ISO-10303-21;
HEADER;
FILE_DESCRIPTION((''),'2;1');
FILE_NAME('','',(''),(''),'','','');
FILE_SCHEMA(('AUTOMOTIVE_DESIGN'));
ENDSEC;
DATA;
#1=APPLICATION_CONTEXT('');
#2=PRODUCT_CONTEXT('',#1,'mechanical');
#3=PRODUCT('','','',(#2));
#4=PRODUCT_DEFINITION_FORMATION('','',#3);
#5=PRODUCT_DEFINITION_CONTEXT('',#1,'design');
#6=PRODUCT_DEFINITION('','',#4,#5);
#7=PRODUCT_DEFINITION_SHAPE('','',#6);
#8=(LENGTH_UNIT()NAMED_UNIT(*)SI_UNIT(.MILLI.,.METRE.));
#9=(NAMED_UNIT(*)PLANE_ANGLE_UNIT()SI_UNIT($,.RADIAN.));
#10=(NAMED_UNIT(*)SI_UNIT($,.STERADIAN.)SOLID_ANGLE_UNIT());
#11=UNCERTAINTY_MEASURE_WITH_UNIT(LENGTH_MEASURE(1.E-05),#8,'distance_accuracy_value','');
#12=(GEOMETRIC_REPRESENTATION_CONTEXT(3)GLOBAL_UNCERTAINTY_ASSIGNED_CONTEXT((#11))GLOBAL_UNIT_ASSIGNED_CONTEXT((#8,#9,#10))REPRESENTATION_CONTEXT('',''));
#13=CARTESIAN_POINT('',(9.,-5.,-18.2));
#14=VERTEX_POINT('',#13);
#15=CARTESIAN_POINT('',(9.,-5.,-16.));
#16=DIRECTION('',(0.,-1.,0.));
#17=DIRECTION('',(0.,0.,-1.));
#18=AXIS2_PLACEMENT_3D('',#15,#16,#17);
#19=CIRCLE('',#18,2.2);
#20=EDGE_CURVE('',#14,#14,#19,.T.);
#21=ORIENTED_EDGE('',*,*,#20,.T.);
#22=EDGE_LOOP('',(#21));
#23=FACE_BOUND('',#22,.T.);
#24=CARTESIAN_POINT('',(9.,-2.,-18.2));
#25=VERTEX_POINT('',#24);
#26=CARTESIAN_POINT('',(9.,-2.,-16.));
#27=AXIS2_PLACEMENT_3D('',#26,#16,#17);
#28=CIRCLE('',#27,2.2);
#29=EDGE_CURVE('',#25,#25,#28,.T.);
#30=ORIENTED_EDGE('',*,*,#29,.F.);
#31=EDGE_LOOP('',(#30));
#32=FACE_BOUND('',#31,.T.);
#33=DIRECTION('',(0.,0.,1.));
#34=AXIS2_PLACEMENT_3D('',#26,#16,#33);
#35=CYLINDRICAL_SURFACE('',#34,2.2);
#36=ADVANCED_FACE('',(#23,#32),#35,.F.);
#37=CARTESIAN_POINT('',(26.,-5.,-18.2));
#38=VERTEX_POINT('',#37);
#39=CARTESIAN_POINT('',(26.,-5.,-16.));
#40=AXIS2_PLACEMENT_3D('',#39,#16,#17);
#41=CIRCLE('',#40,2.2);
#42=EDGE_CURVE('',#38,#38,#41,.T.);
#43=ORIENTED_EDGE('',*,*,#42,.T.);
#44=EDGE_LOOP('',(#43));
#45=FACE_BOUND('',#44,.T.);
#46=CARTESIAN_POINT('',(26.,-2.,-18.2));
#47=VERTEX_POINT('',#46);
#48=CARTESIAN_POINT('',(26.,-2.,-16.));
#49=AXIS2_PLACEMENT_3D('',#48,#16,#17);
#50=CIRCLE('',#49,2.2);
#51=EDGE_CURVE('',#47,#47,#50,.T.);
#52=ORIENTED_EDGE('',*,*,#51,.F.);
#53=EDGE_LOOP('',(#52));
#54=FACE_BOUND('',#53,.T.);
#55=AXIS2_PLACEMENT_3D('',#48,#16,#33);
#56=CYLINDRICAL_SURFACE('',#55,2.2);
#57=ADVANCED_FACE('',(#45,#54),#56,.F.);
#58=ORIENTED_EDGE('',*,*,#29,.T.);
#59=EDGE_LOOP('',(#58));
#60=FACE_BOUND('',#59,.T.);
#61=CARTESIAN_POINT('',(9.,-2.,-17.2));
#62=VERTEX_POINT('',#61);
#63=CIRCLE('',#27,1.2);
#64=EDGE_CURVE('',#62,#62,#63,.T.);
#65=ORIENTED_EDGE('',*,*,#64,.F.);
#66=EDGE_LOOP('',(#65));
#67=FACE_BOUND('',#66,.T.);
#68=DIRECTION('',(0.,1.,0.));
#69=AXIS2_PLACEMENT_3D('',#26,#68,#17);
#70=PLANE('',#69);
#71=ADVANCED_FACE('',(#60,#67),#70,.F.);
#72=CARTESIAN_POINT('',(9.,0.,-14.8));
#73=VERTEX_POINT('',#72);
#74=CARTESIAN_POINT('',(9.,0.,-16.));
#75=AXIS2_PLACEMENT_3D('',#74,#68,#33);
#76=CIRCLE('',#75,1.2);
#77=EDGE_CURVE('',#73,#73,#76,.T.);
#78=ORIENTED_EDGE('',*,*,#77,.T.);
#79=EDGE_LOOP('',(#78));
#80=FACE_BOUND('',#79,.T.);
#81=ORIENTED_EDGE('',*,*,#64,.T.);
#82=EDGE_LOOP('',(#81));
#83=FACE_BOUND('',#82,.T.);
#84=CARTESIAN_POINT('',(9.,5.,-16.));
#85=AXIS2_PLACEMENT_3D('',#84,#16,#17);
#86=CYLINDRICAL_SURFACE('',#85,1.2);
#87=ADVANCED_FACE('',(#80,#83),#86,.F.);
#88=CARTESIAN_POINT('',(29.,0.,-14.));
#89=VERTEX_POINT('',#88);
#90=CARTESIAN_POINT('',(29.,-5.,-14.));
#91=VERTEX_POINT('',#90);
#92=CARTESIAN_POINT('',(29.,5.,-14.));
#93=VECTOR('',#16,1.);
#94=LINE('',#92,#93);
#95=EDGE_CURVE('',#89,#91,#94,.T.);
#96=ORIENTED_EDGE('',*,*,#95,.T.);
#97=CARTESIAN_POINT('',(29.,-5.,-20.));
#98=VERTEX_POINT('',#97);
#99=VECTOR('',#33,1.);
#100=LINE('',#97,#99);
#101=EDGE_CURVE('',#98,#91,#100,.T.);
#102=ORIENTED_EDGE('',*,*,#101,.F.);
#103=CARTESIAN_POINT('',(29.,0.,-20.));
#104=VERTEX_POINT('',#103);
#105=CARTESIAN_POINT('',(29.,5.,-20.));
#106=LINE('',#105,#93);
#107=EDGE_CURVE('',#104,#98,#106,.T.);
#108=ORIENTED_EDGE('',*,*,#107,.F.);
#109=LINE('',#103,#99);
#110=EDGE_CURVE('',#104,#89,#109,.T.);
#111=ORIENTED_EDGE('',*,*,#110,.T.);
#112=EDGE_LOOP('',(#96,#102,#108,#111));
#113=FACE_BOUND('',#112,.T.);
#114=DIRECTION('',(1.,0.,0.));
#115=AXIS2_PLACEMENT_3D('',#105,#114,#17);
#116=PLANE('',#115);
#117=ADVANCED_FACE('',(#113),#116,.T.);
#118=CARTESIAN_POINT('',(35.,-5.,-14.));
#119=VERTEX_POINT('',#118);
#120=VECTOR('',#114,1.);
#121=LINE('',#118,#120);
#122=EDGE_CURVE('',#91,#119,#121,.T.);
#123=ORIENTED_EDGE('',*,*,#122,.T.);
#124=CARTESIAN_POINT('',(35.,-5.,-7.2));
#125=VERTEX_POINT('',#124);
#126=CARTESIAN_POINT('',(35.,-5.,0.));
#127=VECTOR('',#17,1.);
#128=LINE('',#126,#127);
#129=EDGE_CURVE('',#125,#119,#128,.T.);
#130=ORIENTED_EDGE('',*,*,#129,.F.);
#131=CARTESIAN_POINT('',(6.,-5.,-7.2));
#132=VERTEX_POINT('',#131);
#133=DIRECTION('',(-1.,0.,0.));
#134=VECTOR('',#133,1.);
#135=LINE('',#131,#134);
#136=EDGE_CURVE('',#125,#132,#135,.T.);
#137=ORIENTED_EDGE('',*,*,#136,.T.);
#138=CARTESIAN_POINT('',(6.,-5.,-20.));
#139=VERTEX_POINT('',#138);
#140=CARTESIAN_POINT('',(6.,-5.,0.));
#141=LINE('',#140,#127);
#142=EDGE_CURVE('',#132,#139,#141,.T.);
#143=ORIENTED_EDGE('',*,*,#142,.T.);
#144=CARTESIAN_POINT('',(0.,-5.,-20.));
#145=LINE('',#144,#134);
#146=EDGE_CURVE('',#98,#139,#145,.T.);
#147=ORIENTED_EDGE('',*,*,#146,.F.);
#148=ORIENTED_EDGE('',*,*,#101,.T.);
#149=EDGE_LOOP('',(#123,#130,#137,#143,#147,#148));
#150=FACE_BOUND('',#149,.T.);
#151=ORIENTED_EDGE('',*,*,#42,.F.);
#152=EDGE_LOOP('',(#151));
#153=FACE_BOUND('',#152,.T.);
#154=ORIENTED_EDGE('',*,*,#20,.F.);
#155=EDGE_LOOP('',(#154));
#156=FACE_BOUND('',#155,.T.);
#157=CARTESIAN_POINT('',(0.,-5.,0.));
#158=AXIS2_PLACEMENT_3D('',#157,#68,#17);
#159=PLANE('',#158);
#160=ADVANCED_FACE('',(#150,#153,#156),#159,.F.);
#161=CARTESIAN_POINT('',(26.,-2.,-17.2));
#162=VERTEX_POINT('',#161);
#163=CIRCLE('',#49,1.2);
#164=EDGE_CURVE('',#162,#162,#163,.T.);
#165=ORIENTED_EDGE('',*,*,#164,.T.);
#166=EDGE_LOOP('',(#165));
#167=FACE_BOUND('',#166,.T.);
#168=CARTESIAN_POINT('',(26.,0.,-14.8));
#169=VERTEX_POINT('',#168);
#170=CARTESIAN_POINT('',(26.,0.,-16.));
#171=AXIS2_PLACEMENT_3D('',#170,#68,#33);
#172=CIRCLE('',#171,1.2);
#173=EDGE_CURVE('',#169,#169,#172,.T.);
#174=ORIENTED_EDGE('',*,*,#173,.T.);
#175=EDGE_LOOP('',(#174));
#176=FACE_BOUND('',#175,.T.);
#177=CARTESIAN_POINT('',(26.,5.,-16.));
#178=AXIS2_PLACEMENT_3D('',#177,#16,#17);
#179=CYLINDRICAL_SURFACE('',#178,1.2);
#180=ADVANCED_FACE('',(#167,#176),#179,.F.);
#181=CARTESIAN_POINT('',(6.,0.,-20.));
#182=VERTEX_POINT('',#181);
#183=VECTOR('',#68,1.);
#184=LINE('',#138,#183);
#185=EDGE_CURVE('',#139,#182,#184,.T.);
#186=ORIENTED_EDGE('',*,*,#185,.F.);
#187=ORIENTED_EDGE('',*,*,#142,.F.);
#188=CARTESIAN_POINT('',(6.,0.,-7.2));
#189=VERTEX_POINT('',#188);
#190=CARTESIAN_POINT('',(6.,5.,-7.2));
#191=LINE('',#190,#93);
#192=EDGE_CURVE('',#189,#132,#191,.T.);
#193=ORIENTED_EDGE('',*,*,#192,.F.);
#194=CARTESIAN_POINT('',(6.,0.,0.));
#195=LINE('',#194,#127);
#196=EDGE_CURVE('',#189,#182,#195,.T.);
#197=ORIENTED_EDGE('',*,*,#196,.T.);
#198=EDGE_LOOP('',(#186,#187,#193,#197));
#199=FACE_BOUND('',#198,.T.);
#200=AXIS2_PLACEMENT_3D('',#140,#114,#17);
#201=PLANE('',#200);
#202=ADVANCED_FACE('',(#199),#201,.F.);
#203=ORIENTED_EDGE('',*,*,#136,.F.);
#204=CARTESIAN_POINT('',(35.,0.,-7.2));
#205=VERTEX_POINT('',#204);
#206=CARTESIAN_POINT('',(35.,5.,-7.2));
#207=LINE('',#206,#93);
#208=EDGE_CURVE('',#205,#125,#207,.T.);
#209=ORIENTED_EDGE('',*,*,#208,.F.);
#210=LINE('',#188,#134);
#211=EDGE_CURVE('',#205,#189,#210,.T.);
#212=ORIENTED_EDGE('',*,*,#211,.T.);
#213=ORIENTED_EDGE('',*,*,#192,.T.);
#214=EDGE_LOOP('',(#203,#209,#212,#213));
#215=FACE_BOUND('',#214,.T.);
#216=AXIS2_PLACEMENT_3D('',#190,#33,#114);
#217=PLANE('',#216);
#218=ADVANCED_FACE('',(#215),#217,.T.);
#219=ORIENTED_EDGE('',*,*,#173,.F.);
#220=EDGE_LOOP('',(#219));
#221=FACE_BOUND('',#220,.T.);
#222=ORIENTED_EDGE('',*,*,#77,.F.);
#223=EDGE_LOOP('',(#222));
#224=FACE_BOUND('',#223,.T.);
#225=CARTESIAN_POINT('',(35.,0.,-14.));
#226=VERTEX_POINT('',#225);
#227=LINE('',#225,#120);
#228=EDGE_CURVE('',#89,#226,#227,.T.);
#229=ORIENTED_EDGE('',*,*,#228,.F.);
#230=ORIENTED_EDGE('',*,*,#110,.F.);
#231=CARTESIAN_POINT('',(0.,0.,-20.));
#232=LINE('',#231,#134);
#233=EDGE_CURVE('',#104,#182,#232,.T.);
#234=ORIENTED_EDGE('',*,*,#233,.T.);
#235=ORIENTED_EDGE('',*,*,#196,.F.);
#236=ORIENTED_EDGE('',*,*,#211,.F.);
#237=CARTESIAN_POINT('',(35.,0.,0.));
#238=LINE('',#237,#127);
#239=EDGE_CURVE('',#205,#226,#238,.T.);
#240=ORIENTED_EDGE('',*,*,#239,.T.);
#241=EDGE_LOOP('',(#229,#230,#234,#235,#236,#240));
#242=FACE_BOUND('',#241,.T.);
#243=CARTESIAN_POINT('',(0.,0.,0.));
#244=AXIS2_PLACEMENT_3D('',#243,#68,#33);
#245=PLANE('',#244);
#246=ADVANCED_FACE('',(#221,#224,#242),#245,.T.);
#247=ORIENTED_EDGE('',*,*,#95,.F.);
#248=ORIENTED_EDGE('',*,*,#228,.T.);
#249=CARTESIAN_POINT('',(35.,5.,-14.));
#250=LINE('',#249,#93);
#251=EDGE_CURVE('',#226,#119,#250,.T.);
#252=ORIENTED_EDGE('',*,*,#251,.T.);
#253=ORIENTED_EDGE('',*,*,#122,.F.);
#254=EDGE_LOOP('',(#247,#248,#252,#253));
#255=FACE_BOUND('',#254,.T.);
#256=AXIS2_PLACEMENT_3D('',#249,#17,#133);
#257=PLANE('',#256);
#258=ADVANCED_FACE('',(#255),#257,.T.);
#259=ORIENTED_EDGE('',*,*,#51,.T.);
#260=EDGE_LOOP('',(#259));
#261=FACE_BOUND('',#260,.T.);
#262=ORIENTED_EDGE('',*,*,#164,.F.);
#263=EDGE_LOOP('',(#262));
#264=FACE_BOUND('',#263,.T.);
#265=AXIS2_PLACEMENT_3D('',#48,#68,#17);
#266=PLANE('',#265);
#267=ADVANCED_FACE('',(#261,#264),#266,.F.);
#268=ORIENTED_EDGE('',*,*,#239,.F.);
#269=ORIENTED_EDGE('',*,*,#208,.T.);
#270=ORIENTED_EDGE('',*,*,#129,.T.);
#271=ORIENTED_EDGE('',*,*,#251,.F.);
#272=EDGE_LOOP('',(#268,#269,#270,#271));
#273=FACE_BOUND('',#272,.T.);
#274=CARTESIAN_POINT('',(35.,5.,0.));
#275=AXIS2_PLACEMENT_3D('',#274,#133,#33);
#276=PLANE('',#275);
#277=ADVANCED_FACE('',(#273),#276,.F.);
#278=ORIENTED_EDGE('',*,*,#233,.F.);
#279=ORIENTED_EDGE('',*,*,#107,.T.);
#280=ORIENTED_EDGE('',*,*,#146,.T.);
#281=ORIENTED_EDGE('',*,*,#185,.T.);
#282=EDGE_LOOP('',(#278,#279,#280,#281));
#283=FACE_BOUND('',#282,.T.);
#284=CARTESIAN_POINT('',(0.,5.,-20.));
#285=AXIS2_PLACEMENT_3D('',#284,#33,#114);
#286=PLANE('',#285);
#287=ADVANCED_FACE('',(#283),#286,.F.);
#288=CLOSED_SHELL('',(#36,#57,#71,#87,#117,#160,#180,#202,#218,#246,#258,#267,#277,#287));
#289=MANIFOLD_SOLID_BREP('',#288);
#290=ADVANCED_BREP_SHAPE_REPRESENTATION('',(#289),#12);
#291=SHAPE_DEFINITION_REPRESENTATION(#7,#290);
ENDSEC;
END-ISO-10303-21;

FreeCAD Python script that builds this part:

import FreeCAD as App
import Part
import Sketcher
from FreeCAD import Vector
Q = App.Units.Quantity

doc = App.newDocument("Part")
body = doc.addObject("PartDesign::Body", "Body")

# Sketch on XZ plane
sketch1 = body.newObject("Sketcher::SketchObject", "Sketch")
sketch1.AttachmentSupport = (doc.getObject("XZ_Plane"), [""])
sketch1.MapMode = "FlatFace"
sketch1.addGeometry(Part.LineSegment(Vector(0, -20, 0), Vector(0, 0, 0)), False)
sketch1.addGeometry(Part.LineSegment(Vector(0, 0, 0), Vector(35, 0, 0)), False)
sketch1.addGeometry(Part.LineSegment(Vector(35, 0, 0), Vector(35, -20, 0)), False)
sketch1.addGeometry(Part.LineSegment(Vector(35, -20, 0), Vector(0, -20, 0)), False)
sketch1.addConstraint(Sketcher.Constraint("Coincident", 0, 2, 1, 1))
sketch1.addConstraint(Sketcher.Constraint("Coincident", 1, 2, 2, 1))
sketch1.addConstraint(Sketcher.Constraint("Coincident", 2, 2, 3, 1))
sketch1.addConstraint(Sketcher.Constraint("Coincident", 3, 2, 0, 1))
sketch1.addConstraint(Sketcher.Constraint("Vertical", 0))
sketch1.addConstraint(Sketcher.Constraint("Horizontal", 1))
sketch1.addConstraint(Sketcher.Constraint("Vertical", 2))
sketch1.addConstraint(Sketcher.Constraint("Horizontal", 3))
sketch1.addConstraint(Sketcher.Constraint("Coincident", 0, 2, -1, 1))
sketch1.addConstraint(Sketcher.Constraint("DistanceX", 1, 1, 1, 2, Q("35 mm")))
sketch1.addConstraint(Sketcher.Constraint("DistanceY", 0, 1, 0, 2, Q("20 mm")))
pad1 = body.newObject("PartDesign::Pad", "Pad")
pad1.Profile = sketch1
pad1.Length = 5
pad1.Reversed = True

# Sketch on XZ plane
sketch2 = body.newObject("Sketcher::SketchObject", "Sketch001")
sketch2.AttachmentSupport = (doc.getObject("XZ_Plane"), [""])
sketch2.MapMode = "FlatFace"
sketch2.addGeometry(Part.LineSegment(Vector(6, -7, 0), Vector(6, 0, 0)), False)
sketch2.addGeometry(Part.LineSegment(Vector(6, 0, 0), Vector(35, 0, 0)), False)
sketch2.addGeometry(Part.LineSegment(Vector(35, 0, 0), Vector(35, -7, 0)), False)
sketch2.addGeometry(Part.LineSegment(Vector(35, -7, 0), Vector(6, -7, 0)), False)
sketch2.addConstraint(Sketcher.Constraint("Coincident", 0, 2, 1, 1))
sketch2.addConstraint(Sketcher.Constraint("Coincident", 1, 2, 2, 1))
sketch2.addConstraint(Sketcher.Constraint("Coincident", 2, 2, 3, 1))
sketch2.addConstraint(Sketcher.Constraint("Coincident", 3, 2, 0, 1))
sketch2.addConstraint(Sketcher.Constraint("Vertical", 0))
sketch2.addConstraint(Sketcher.Constraint("Horizontal", 1))
sketch2.addConstraint(Sketcher.Constraint("Vertical", 2))
sketch2.addConstraint(Sketcher.Constraint("Horizontal", 3))
sketch2.addConstraint(Sketcher.Constraint("PointOnObject", 0, 2, -1))
sketch2.addConstraint(Sketcher.Constraint("DistanceX", 1, 1, 1, 2, Q("29 mm")))
sketch2.addConstraint(Sketcher.Constraint("DistanceY", 0, 1, 0, 2, Q("7.2 mm")))
sketch2.addConstraint(Sketcher.Constraint("DistanceX", -1, 1, 0, 2, Q("6 mm")))
pocket1 = body.newObject("PartDesign::Pocket", "Pocket")
pocket1.Profile = sketch2
pocket1.Length = 5

# Sketch on XZ plane
sketch3 = body.newObject("Sketcher::SketchObject", "Sketch002")
sketch3.AttachmentSupport = (doc.getObject("XZ_Plane"), [""])
sketch3.MapMode = "FlatFace"
sketch3.addGeometry(Part.LineSegment(Vector(29, -20, 0), Vector(29, -14, 0)), False)
sketch3.addGeometry(Part.LineSegment(Vector(29, -14, 0), Vector(35, -14, 0)), False)
sketch3.addGeometry(Part.LineSegment(Vector(35, -14, 0), Vector(35, -20, 0)), False)
sketch3.addGeometry(Part.LineSegment(Vector(35, -20, 0), Vector(29, -20, 0)), False)
sketch3.addConstraint(Sketcher.Constraint("Coincident", 0, 2, 1, 1))
sketch3.addConstraint(Sketcher.Constraint("Coincident", 1, 2, 2, 1))
sketch3.addConstraint(Sketcher.Constraint("Coincident", 2, 2, 3, 1))
sketch3.addConstraint(Sketcher.Constraint("Coincident", 3, 2, 0, 1))
sketch3.addConstraint(Sketcher.Constraint("Vertical", 0))
sketch3.addConstraint(Sketcher.Constraint("Horizontal", 1))
sketch3.addConstraint(Sketcher.Constraint("Vertical", 2))
sketch3.addConstraint(Sketcher.Constraint("Horizontal", 3))
sketch3.addConstraint(Sketcher.Constraint("Equal", 3, 0))
sketch3.addConstraint(Sketcher.Constraint("DistanceX", 1, 1, 1, 2, Q("6 mm")))
sketch3.addConstraint(Sketcher.Constraint("DistanceX", -1, 1, 0, 2, Q("29 mm")))
sketch3.addConstraint(Sketcher.Constraint("DistanceY", 0, 2, -1, 1, Q("14 mm")))
pocket2 = body.newObject("PartDesign::Pocket", "Pocket001")
pocket2.Profile = sketch3
pocket2.Length = 5

# Sketch on XZ plane
sketch4 = body.newObject("Sketcher::SketchObject", "Sketch003")
sketch4.AttachmentSupport = (doc.getObject("XZ_Plane"), [""])
sketch4.MapMode = "FlatFace"
sketch4.addGeometry(Part.Circle(Vector(3, -16, 0), Vector(0, 0, 1), 1.2), False)
sketch4.addGeometry(Part.Circle(Vector(3, -4, 0), Vector(0, 0, 1), 1.2), False)
sketch4.addGeometry(Part.Circle(Vector(9, -16, 0), Vector(0, 0, 1), 1.2), False)
sketch4.addGeometry(Part.Circle(Vector(26, -16, 0), Vector(0, 0, 1), 1.2), False)
sketch4.addConstraint(Sketcher.Constraint("Equal", 0, 1))
sketch4.addConstraint(Sketcher.Constraint("Equal", 1, 2))
sketch4.addConstraint(Sketcher.Constraint("Equal", 2, 3))
sketch4.addConstraint(Sketcher.Constraint("Horizontal", 0, 3, 2, 3))
sketch4.addConstraint(Sketcher.Constraint("Horizontal", 2, 3, 3, 3))
sketch4.addConstraint(Sketcher.Constraint("Vertical", 0, 3, 1, 3))
sketch4.addConstraint(Sketcher.Constraint("Diameter", 0, Q("2.4 mm")))
sketch4.addConstraint(Sketcher.Constraint("DistanceX", -1, 1, 0, 3, Q("3 mm")))
sketch4.addConstraint(Sketcher.Constraint("DistanceY", 0, 3, -1, 1, Q("16 mm")))
sketch4.addConstraint(Sketcher.Constraint("DistanceY", 1, 3, -1, 1, Q("4 mm")))
sketch4.addConstraint(Sketcher.Constraint("DistanceX", -1, 1, 2, 3, Q("9 mm")))
sketch4.addConstraint(Sketcher.Constraint("DistanceX", -1, 1, 3, 3, Q("26 mm")))
pocket3 = body.newObject("PartDesign::Pocket", "Pocket002")
pocket3.Profile = sketch4
pocket3.Type = "ThroughAll"

# Sketch on XZ plane
sketch5 = body.newObject("Sketcher::SketchObject", "Sketch004")
sketch5.AttachmentSupport = (doc.getObject("XZ_Plane"), [""])
sketch5.MapMode = "FlatFace"
sketch5.addGeometry(Part.Circle(Vector(3, -16, 0), Vector(0, 0, 1), 2.2), False)
sketch5.addGeometry(Part.Circle(Vector(3, -4, 0), Vector(0, 0, 1), 2.2), False)
sketch5.addConstraint(Sketcher.Constraint("Equal", 0, 1))
sketch5.addConstraint(Sketcher.Constraint("Vertical", 0, 3, 1, 3))
sketch5.addConstraint(Sketcher.Constraint("Diameter", 0, Q("4.4 mm")))
sketch5.addConstraint(Sketcher.Constraint("DistanceX", -1, 1, 0, 3, Q("3 mm")))
sketch5.addConstraint(Sketcher.Constraint("DistanceY", 0, 3, -1, 1, Q("16 mm")))
sketch5.addConstraint(Sketcher.Constraint("DistanceY", 1, 3, -1, 1, Q("4 mm")))
pocket4 = body.newObject("PartDesign::Pocket", "Pocket003")
pocket4.Profile = sketch5
pocket4.Length = 2

# Sketch on XZ plane
sketch6 = body.newObject("Sketcher::SketchObject", "Sketch005")
sketch6.AttachmentSupport = (doc.getObject("XZ_Plane"), [""])
sketch6.MapMode = "FlatFace"
sketch6.AttachmentOffset = App.Placement(Vector(0, 0, -5), App.Rotation())
sketch6.addGeometry(Part.Circle(Vector(9, -16, 0), Vector(0, 0, 1), 2.2), False)
sketch6.addGeometry(Part.Circle(Vector(26, -16, 0), Vector(0, 0, 1), 2.2), False)
sketch6.addConstraint(Sketcher.Constraint("Equal", 0, 1))
sketch6.addConstraint(Sketcher.Constraint("Horizontal", 0, 3, 1, 3))
sketch6.addConstraint(Sketcher.Constraint("Diameter", 0, Q("4.4 mm")))
sketch6.addConstraint(Sketcher.Constraint("DistanceX", -1, 1, 0, 3, Q("9 mm")))
sketch6.addConstraint(Sketcher.Constraint("DistanceY", 0, 3, -1, 1, Q("16 mm")))
sketch6.addConstraint(Sketcher.Constraint("DistanceX", -1, 1, 1, 3, Q("26 mm")))
pocket5 = body.newObject("PartDesign::Pocket", "Pocket004")
pocket5.Profile = sketch6
pocket5.Length = 3
pocket5.Reversed = True
doc.recompute()

mirrored = body.newObject("PartDesign::Mirrored", "Mirrored")
mirrored.Originals = [pad1, pocket1, pocket2, pocket3, pocket4, pocket5]
mirrored.MirrorPlane = (doc.getObject("XZ_Plane"), [""])
body.Tip = mirrored

# Sketch on XZ plane
sketch7 = body.newObject("Sketcher::SketchObject", "Sketch006")
sketch7.AttachmentSupport = (doc.getObject("XZ_Plane"), [""])
sketch7.MapMode = "FlatFace"
sketch7.addGeometry(Part.LineSegment(Vector(-1, -21, 0), Vector(-1, 4, 0)), False)
sketch7.addGeometry(Part.LineSegment(Vector(-1, 4, 0), Vector(39, 4, 0)), False)
sketch7.addGeometry(Part.LineSegment(Vector(39, 4, 0), Vector(39, -21, 0)), False)
sketch7.addGeometry(Part.LineSegment(Vector(39, -21, 0), Vector(-1, -21, 0)), False)
sketch7.addConstraint(Sketcher.Constraint("Coincident", 0, 2, 1, 1))
sketch7.addConstraint(Sketcher.Constraint("Coincident", 1, 2, 2, 1))
sketch7.addConstraint(Sketcher.Constraint("Coincident", 2, 2, 3, 1))
sketch7.addConstraint(Sketcher.Constraint("Coincident", 3, 2, 0, 1))
sketch7.addConstraint(Sketcher.Constraint("Vertical", 0))
sketch7.addConstraint(Sketcher.Constraint("Horizontal", 1))
sketch7.addConstraint(Sketcher.Constraint("Vertical", 2))
sketch7.addConstraint(Sketcher.Constraint("Horizontal", 3))
sketch7.addConstraint(Sketcher.Constraint("DistanceX", -1, 1, 1, 2, Q("38.9593 mm")))
sketch7.addConstraint(Sketcher.Constraint("DistanceX", 1, 1, 1, 2, Q("40.267996 mm")))
sketch7.addConstraint(Sketcher.Constraint("DistanceY", 0, 1, 0, 2, Q("24.754573 mm")))
sketch7.addConstraint(Sketcher.Constraint("DistanceY", -1, 1, 0, 2, Q("3.752451 mm")))
pocket6 = body.newObject("PartDesign::Pocket", "Pocket005")
pocket6.Profile = sketch7
pocket6.Type = "ThroughAll"

# Sketch on XZ plane
sketch8 = body.newObject("Sketcher::SketchObject", "Sketch007")
sketch8.AttachmentSupport = (doc.getObject("XZ_Plane"), [""])
sketch8.MapMode = "FlatFace"
sketch8.addGeometry(Part.LineSegment(Vector(0, -20, 0), Vector(0, 0, 0)), False)
sketch8.addGeometry(Part.LineSegment(Vector(0, 0, 0), Vector(6, 0, 0)), False)
sketch8.addGeometry(Part.LineSegment(Vector(6, 0, 0), Vector(6, -20, 0)), False)
sketch8.addGeometry(Part.LineSegment(Vector(6, -20, 0), Vector(0, -20, 0)), False)
sketch8.addConstraint(Sketcher.Constraint("Coincident", 0, 2, 1, 1))
sketch8.addConstraint(Sketcher.Constraint("Coincident", 1, 2, 2, 1))
sketch8.addConstraint(Sketcher.Constraint("Coincident", 2, 2, 3, 1))
sketch8.addConstraint(Sketcher.Constraint("Coincident", 3, 2, 0, 1))
sketch8.addConstraint(Sketcher.Constraint("Vertical", 0))
sketch8.addConstraint(Sketcher.Constraint("Horizontal", 1))
sketch8.addConstraint(Sketcher.Constraint("Vertical", 2))
sketch8.addConstraint(Sketcher.Constraint("Horizontal", 3))
sketch8.addConstraint(Sketcher.Constraint("Coincident", 0, 2, -1, 1))
sketch8.addConstraint(Sketcher.Constraint("DistanceX", 1, 1, 1, 2, Q("6 mm")))
sketch8.addConstraint(Sketcher.Constraint("DistanceY", 0, 1, 0, 2, Q("20 mm")))
pocket7 = body.newObject("PartDesign::Pocket", "Pocket006")
pocket7.Profile = sketch8
pocket7.Type = "ThroughAll"
pocket7.Reversed = True

doc.recompute()
